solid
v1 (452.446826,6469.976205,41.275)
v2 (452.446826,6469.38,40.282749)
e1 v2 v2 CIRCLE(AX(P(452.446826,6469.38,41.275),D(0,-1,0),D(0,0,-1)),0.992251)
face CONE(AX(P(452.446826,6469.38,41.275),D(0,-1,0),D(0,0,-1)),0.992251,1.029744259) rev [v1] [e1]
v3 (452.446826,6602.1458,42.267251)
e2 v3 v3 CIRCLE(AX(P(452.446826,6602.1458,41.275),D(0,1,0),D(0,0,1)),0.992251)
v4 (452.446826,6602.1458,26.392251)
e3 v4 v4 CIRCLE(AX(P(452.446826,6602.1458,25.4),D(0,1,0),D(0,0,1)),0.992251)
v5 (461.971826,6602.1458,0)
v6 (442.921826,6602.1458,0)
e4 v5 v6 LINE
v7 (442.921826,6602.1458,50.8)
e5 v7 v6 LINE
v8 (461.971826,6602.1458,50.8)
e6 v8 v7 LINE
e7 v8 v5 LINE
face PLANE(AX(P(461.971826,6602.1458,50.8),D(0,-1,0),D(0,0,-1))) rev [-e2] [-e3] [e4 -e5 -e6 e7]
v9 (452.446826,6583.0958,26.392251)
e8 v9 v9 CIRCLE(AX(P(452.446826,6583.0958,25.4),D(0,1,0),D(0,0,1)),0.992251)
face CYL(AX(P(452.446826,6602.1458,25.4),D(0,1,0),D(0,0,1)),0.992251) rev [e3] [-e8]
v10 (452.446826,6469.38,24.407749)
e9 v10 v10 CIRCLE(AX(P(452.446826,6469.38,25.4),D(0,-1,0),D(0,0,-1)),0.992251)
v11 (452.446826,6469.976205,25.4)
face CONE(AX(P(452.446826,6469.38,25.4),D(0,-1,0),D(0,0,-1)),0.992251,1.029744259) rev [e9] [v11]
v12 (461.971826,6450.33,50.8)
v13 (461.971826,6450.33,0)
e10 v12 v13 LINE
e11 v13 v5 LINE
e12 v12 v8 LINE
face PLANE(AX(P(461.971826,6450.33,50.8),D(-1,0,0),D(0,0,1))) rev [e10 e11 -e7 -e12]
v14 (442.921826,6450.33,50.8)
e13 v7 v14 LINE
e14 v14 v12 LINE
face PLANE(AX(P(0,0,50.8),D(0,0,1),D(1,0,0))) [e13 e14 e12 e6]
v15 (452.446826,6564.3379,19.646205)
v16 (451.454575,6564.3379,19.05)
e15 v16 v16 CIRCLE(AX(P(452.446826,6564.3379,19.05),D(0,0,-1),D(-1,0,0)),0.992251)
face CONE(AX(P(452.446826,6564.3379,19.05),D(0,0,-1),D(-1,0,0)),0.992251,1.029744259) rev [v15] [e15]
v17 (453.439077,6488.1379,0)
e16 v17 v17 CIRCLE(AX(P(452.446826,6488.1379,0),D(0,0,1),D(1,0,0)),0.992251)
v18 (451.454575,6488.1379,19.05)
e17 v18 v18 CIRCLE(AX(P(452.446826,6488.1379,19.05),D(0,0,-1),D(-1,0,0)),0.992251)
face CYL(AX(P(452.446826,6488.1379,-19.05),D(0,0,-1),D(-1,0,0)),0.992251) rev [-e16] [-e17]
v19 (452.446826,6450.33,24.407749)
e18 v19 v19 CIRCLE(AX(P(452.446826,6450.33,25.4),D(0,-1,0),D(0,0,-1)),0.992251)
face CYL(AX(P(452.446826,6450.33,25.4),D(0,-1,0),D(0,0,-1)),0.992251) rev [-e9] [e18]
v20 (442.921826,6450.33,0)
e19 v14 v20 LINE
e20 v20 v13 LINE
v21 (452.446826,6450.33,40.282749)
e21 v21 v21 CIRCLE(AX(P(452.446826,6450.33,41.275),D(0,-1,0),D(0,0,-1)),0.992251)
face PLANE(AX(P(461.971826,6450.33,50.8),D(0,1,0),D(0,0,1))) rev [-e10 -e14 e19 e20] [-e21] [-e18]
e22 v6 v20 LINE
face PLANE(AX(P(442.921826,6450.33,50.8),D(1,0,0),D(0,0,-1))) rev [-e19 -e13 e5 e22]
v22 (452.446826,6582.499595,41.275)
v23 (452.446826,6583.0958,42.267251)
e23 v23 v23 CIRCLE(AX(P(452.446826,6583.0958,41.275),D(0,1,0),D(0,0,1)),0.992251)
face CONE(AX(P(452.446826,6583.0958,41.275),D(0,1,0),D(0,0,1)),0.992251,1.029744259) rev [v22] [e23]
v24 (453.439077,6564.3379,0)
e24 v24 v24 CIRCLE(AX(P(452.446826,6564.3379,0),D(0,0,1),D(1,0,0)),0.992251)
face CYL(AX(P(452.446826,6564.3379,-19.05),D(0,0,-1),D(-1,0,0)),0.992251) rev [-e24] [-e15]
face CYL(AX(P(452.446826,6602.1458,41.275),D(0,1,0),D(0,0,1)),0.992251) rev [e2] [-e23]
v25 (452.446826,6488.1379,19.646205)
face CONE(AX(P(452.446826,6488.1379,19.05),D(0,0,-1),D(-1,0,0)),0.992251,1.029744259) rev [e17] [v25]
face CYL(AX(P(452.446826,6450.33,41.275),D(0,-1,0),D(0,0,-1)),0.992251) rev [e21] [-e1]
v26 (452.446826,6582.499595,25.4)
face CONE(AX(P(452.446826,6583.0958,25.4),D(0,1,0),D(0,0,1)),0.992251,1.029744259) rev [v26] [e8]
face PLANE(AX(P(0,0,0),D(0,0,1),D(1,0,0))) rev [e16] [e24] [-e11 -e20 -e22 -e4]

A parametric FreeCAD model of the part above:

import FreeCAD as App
import Part
import Sketcher
Q = App.Units.Quantity

doc = App.newDocument("Part")
body = doc.addObject("PartDesign::Body", "Body")

# Sketch on XY plane
sketch1 = doc.addObject("Sketcher::SketchObject", "Sketch")
body.addObject(sketch1)
sketch1.AttachmentSupport = (doc.XY_Plane, [""])
sketch1.MapMode = "FlatFace"
sketch1.addGeometry([
    Part.LineSegment(App.Vector(443, 6602, 0), App.Vector(443, 6450, 0)),
    Part.LineSegment(App.Vector(443, 6450, 0), App.Vector(462, 6450, 0)),
    Part.LineSegment(App.Vector(462, 6450, 0), App.Vector(462, 6602, 0)),
    Part.LineSegment(App.Vector(462, 6602, 0), App.Vector(443, 6602, 0)),
], False)
sketch1.addConstraint([
    Sketcher.Constraint("Coincident", 0, 2, 1, 1),
    Sketcher.Constraint("Coincident", 1, 2, 2, 1),
    Sketcher.Constraint("Coincident", 2, 2, 3, 1),
    Sketcher.Constraint("Coincident", 3, 2, 0, 1),
    Sketcher.Constraint("Vertical", 0),
    Sketcher.Constraint("Horizontal", 1),
    Sketcher.Constraint("Vertical", 2),
    Sketcher.Constraint("Horizontal", 3),
    Sketcher.Constraint("DistanceX", 1, 1, 1, 2, Q("0.75 in")),
    Sketcher.Constraint("DistanceY", 0, 2, 0, 1, Q("5.977 in")),
    Sketcher.Constraint("DistanceY", -1, 1, 0, 2, Q("253.95 in")),
    Sketcher.Constraint("DistanceX", -1, 1, 0, 2, 442.921826),
])
pad1 = doc.addObject("PartDesign::Pad", "Pad")
body.addObject(pad1)
pad1.Profile = sketch1
pad1.Length = Q("2 in")

# Sketch on XY plane
sketch2 = doc.addObject("Sketcher::SketchObject", "Sketch001")
body.addObject(sketch2)
sketch2.AttachmentSupport = (doc.XY_Plane, [""])
sketch2.MapMode = "FlatFace"
sketch2.AttachmentOffset = App.Placement(App.Vector(0, 0, -0.75 * 25.4), App.Rotation())
sketch2.addGeometry([
    Part.Circle(App.Vector(487.2, 6993.3, 0), App.Vector(0, 0, 1), 1),  # 0
    Part.Circle(App.Vector(392, 6993.3, 0), App.Vector(0, 0, 1), 1),  # 1
    Part.Circle(App.Vector(296.7, 6993.3, 0), App.Vector(0, 0, 1), 1),  # 2
    Part.Circle(App.Vector(300.9, 6965.1, 0), App.Vector(0, 0, 1), 1),  # 3
    Part.Circle(App.Vector(300.9, 6812.7, 0), App.Vector(0, 0, 1), 1),  # 4
    Part.Circle(App.Vector(300.9, 6660.3, 0), App.Vector(0, 0, 1), 1),  # 5
    Part.Circle(App.Vector(290.8, 6631.5, 0), App.Vector(0, 0, 1), 1),  # 6
    Part.Circle(App.Vector(481.1, 6631.5, 0), App.Vector(0, 0, 1), 1),  # 7
    Part.Circle(App.Vector(490.6, 6660.3, 0), App.Vector(0, 0, 1), 1),  # 8
    Part.Circle(App.Vector(490.6, 6812.7, 0), App.Vector(0, 0, 1), 1),  # 9
    Part.Circle(App.Vector(490.6, 6965.1, 0), App.Vector(0, 0, 1), 1),  # 10
    Part.Circle(App.Vector(484, 6611.7, 0), App.Vector(0, 0, 1), 1),  # 11
    Part.Circle(App.Vector(293.5, 6611.7, 0), App.Vector(0, 0, 1), 1),  # 12
    Part.Circle(App.Vector(313.6, 6564.3, 0), App.Vector(0, 0, 1), 1),  # 13
    Part.Circle(App.Vector(313.6, 6488.1, 0), App.Vector(0, 0, 1), 1),  # 14
    Part.Circle(App.Vector(290.6, 6440.8, 0), App.Vector(0, 0, 1), 1),  # 15
    Part.Circle(App.Vector(385.8, 6440.8, 0), App.Vector(0, 0, 1), 1),  # 16
    Part.Circle(App.Vector(481.1, 6440.8, 0), App.Vector(0, 0, 1), 1),  # 17
    Part.Circle(App.Vector(452.4, 6488.1, 0), App.Vector(0, 0, 1), 1),  # 18
    Part.Circle(App.Vector(452.4, 6564.3, 0), App.Vector(0, 0, 1), 1),  # 19
    Part.Circle(App.Vector(477.8, 6396.4, 0), App.Vector(0, 0, 1), 1),  # 20
    Part.Circle(App.Vector(477.8, 6320.2, 0), App.Vector(0, 0, 1), 1),  # 21
    Part.Circle(App.Vector(478.3, 6275.7, 0), App.Vector(0, 0, 1), 1),  # 22
    Part.Circle(App.Vector(383, 6275.7, 0), App.Vector(0, 0, 1), 1),  # 23
    Part.Circle(App.Vector(287.8, 6275.7, 0), App.Vector(0, 0, 1), 1),  # 24
    Part.Circle(App.Vector(288.2, 6320.2, 0), App.Vector(0, 0, 1), 1),  # 25
    Part.Circle(App.Vector(288.2, 6396.4, 0), App.Vector(0, 0, 1), 1),  # 26
    Part.Circle(App.Vector(441.2, 6221.7, 0), App.Vector(0, 0, 1), 1),  # 27
    Part.Circle(App.Vector(441.2, 6145.5, 0), App.Vector(0, 0, 1), 1),  # 28
    Part.Circle(App.Vector(456.2, 6091.6, 0), App.Vector(0, 0, 1), 1),  # 29
    Part.Circle(App.Vector(466.6, 6091.6, 0), App.Vector(0, 0, 1), 1),  # 30
    Part.Circle(App.Vector(466.6, 6056.6, 0), App.Vector(0, 0, 1), 1),  # 31
    Part.Circle(App.Vector(466.6, 5980.4, 0), App.Vector(0, 0, 1), 1),  # 32
    Part.Circle(App.Vector(466.6, 5945.5, 0), App.Vector(0, 0, 1), 1),  # 33
    Part.Circle(App.Vector(287.8, 5945.5, 0), App.Vector(0, 0, 1), 1),  # 34
    Part.Circle(App.Vector(374.2, 5945.5, 0), App.Vector(0, 0, 1), 1),  # 35
], False)
sketch2.addConstraint([
    Sketcher.Constraint("Equal", 0, 1),
    Sketcher.Constraint("Equal", 1, 2),
    Sketcher.Constraint("Equal", 2, 3),
    Sketcher.Constraint("Equal", 3, 4),
    Sketcher.Constraint("Equal", 4, 5),
    Sketcher.Constraint("Equal", 5, 6),
    Sketcher.Constraint("Equal", 6, 7),
    Sketcher.Constraint("Equal", 7, 8),
    Sketcher.Constraint("Equal", 8, 9),
    Sketcher.Constraint("Equal", 9, 10),
    Sketcher.Constraint("Equal", 10, 11),
    Sketcher.Constraint("Equal", 11, 12),
    Sketcher.Constraint("Equal", 12, 13),
    Sketcher.Constraint("Equal", 13, 14),
    Sketcher.Constraint("Equal", 14, 15),
    Sketcher.Constraint("Equal", 15, 16),
    Sketcher.Constraint("Equal", 16, 17),
    Sketcher.Constraint("Equal", 17, 18),
    Sketcher.Constraint("Equal", 18, 19),
    Sketcher.Constraint("Equal", 19, 20),
    Sketcher.Constraint("Equal", 20, 21),
    Sketcher.Constraint("Equal", 21, 22),
    Sketcher.Constraint("Equal", 22, 23),
    Sketcher.Constraint("Equal", 23, 24),
    Sketcher.Constraint("Equal", 24, 25),
    Sketcher.Constraint("Equal", 25, 26),
    Sketcher.Constraint("Equal", 26, 27),
    Sketcher.Constraint("Equal", 27, 28),
    Sketcher.Constraint("Equal", 28, 29),
    Sketcher.Constraint("Equal", 29, 30),
    Sketcher.Constraint("Equal", 30, 31),
    Sketcher.Constraint("Equal", 31, 32),
    Sketcher.Constraint("Equal", 32, 33),
    Sketcher.Constraint("Equal", 33, 34),
    Sketcher.Constraint("Equal", 34, 35),
    Sketcher.Constraint("Horizontal", 0, 3, 1, 3),
    Sketcher.Constraint("Horizontal", 1, 3, 2, 3),
    Sketcher.Constraint("Horizontal", 5, 3, 8, 3),
    Sketcher.Constraint("Horizontal", 4, 3, 9, 3),
    Sketcher.Constraint("Horizontal", 3, 3, 10, 3),
    Sketcher.Constraint("Horizontal", 11, 3, 12, 3),
    Sketcher.Constraint("Horizontal", 15, 3, 16, 3),
    Sketcher.Constraint("Horizontal", 16, 3, 17, 3),
    Sketcher.Constraint("Horizontal", 14, 3, 18, 3),
    Sketcher.Constraint("Horizontal", 13, 3, 19, 3),
    Sketcher.Constraint("Horizontal", 22, 3, 23, 3),
    Sketcher.Constraint("Horizontal", 23, 3, 24, 3),
    Sketcher.Constraint("Horizontal", 21, 3, 25, 3),
    Sketcher.Constraint("Horizontal", 20, 3, 26, 3),
    Sketcher.Constraint("Horizontal", 33, 3, 34, 3),
    Sketcher.Constraint("Horizontal", 34, 3, 35, 3),
    Sketcher.Constraint("Vertical", 3, 3, 4, 3),
    Sketcher.Constraint("Vertical", 4, 3, 5, 3),
    Sketcher.Constraint("Vertical", 8, 3, 9, 3),
    Sketcher.Constraint("Vertical", 9, 3, 10, 3),
    Sketcher.Constraint("Vertical", 13, 3, 14, 3),
    Sketcher.Constraint("Vertical", 18, 3, 19, 3),
    Sketcher.Constraint("Vertical", 20, 3, 21, 3),
    Sketcher.Constraint("Vertical", 25, 3, 26, 3),
    Sketcher.Constraint("Vertical", 27, 3, 28, 3),
    Sketcher.Constraint("Vertical", 30, 3, 31, 3),
    Sketcher.Constraint("Vertical", 31, 3, 32, 3),
    Sketcher.Constraint("Vertical", 32, 3, 33, 3),
    Sketcher.Constraint("Vertical", 24, 3, 34, 3),
    Sketcher.Constraint("DistanceY", 4, 3, 3, 3, Q("6 in")),
    Sketcher.Constraint("DistanceY", 5, 3, 4, 3, Q("6 in")),
    Sketcher.Constraint("DistanceY", 14, 3, 13, 3, Q("3 in")),
    Sketcher.Constraint("DistanceX", 18, 3, 20, 3, Q("1 in")),
    Sketcher.Constraint("DistanceY", 21, 3, 20, 3, Q("3 in")),
    Sketcher.Constraint("DistanceX", 25, 3, 14, 3, Q("1 in")),
    Sketcher.Constraint("DistanceY", 28, 3, 27, 3, Q("3 in")),
    Sketcher.Constraint("DistanceY", 29, 3, 21, 3, Q("9 in")),
    Sketcher.Constraint("DistanceX", 28, 3, 30, 3, Q("1 in")),
    Sketcher.Constraint("DistanceY", 32, 3, 31, 3, Q("3 in")),
    Sketcher.Constraint("DistanceX", 2, 3, 0, 3, Q("7.5 in")),
    Sketcher.Constraint("DistanceX", 12, 3, 11, 3, Q("7.5 in")),
    Sketcher.Constraint("DistanceX", 5, 3, 13, 3, Q("0.5 in")),
    Sketcher.Constraint("DistanceX", 15, 3, 17, 3, Q("7.5 in")),
    Sketcher.Constraint("DistanceY", 22, 3, 17, 3, Q("6.5 in")),
    Sketcher.Constraint("DistanceX", 24, 3, 22, 3, Q("7.5 in")),
    Sketcher.Constraint("DistanceY", 31, 3, 28, 3, Q("3.5 in")),
    Sketcher.Constraint("DistanceY", -1, 1, 27, 3, Q("244.95 in")),
    Sketcher.Constraint("DistanceX", 1, 3, 0, 3, Q("3.75 in")),
    Sketcher.Constraint("DistanceX", 15, 3, 16, 3, Q("3.75 in")),
    Sketcher.Constraint("DistanceY", 20, 3, 17, 3, Q("1.75 in")),
    Sketcher.Constraint("DistanceX", 23, 3, 22, 3, Q("3.75 in")),
    Sketcher.Constraint("DistanceY", 33, 3, 29, 3, Q("5.75 in")),
    Sketcher.Constraint("DistanceY", -1, 1, 11, 3, Q("260.302 in")),
    Sketcher.Constraint("DistanceY", -1, 1, 15, 3, Q("253.575 in")),
    Sketcher.Constraint("DistanceX", 7, 3, 8, 3, Q("0.375 in")),
    Sketcher.Constraint("Diameter", 0, 1.984502),
    Sketcher.Constraint("DistanceY", -1, 1, 13, 3, Q("258.4385 in")),
    Sketcher.Constraint("DistanceY", 6, 3, 5, 3, Q("1.1364998 in")),
    Sketcher.Constraint("DistanceX", 18, 3, 17, 3, 28.629601),
    Sketcher.Constraint("DistanceX", -1, 1, 0, 3, 487.204762),
    Sketcher.Constraint("DistanceY", -1, 1, 3, 3, 6965.135938),
    Sketcher.Constraint("DistanceX", -1, 1, 7, 3, 481.092821),
    Sketcher.Constraint("DistanceX", -1, 1, 11, 3, 483.981131),
    Sketcher.Constraint("DistanceX", -1, 1, 22, 3, 478.26867),
    Sketcher.Constraint("DistanceX", -1, 1, 27, 3, 441.21416),
    Sketcher.Constraint("DistanceX", -1, 1, 29, 3, 456.208032),
    Sketcher.Constraint("DistanceY", -1, 1, 30, 3, 6091.555478),
    Sketcher.Constraint("DistanceX", 2, 3, 3, 3, 4.185752),
    Sketcher.Constraint("DistanceY", 6, 3, 2, 3, 361.786149),
    Sketcher.Constraint("DistanceY", 7, 3, 0, 3, 361.78624),
    Sketcher.Constraint("DistanceX", 15, 3, 6, 3, 0.205449),
    Sketcher.Constraint("DistanceX", -1, 1, 6, 3, 290.781876),
    Sketcher.Constraint("DistanceX", -1, 1, 35, 3, 374.227337),
])
doc.recompute()
hole = doc.addObject("PartDesign::Hole", "Hole")
body.addObject(hole)
hole.Profile = sketch2
hole.ThreadType = "None"
hole.Diameter = 1.984502
hole.DepthType = "Dimension"
hole.Depth = Q("1.5 in")
hole.DrillPoint = "Angled"
hole.DrillPointAngle = 118
hole.Reversed = True

# Sketch on XY plane
sketch3 = doc.addObject("Sketcher::SketchObject", "Sketch002")
body.addObject(sketch3)
sketch3.AttachmentSupport = (doc.XY_Plane, [""])
sketch3.MapMode = "FlatFace"
sketch3.AttachmentOffset = App.Placement(App.Vector(0, 0, -0.75 * 25.4), App.Rotation())
sketch3.addGeometry([
    Part.Circle(App.Vector(626.1, 6993.3, 0), App.Vector(0, 0, 1), 1),  # 0
    Part.Circle(App.Vector(530.8, 6993.3, 0), App.Vector(0, 0, 1), 1),  # 1
    Part.Circle(App.Vector(435.6, 6993.3, 0), App.Vector(0, 0, 1), 1),  # 2
    Part.Circle(App.Vector(439.7, 6965.1, 0), App.Vector(0, 0, 1), 1),  # 3
    Part.Circle(App.Vector(439.7, 6812.7, 0), App.Vector(0, 0, 1), 1),  # 4
    Part.Circle(App.Vector(439.7, 6660.3, 0), App.Vector(0, 0, 1), 1),  # 5
    Part.Circle(App.Vector(429.6, 6631.5, 0), App.Vector(0, 0, 1), 1),  # 6
    Part.Circle(App.Vector(619.9, 6631.5, 0), App.Vector(0, 0, 1), 1),  # 7
    Part.Circle(App.Vector(629.5, 6660.3, 0), App.Vector(0, 0, 1), 1),  # 8
    Part.Circle(App.Vector(629.5, 6812.7, 0), App.Vector(0, 0, 1), 1),  # 9
    Part.Circle(App.Vector(629.5, 6965.1, 0), App.Vector(0, 0, 1), 1),  # 10
    Part.Circle(App.Vector(622.8, 6611.7, 0), App.Vector(0, 0, 1), 1),  # 11
    Part.Circle(App.Vector(432.3, 6611.7, 0), App.Vector(0, 0, 1), 1),  # 12
    Part.Circle(App.Vector(452.4, 6564.3, 0), App.Vector(0, 0, 1), 1),  # 13
    Part.Circle(App.Vector(452.4, 6488.1, 0), App.Vector(0, 0, 1), 1),  # 14
    Part.Circle(App.Vector(429.4, 6440.8, 0), App.Vector(0, 0, 1), 1),  # 15
    Part.Circle(App.Vector(524.7, 6440.8, 0), App.Vector(0, 0, 1), 1),  # 16
    Part.Circle(App.Vector(619.9, 6440.8, 0), App.Vector(0, 0, 1), 1),  # 17
    Part.Circle(App.Vector(591.3, 6488.1, 0), App.Vector(0, 0, 1), 1),  # 18
    Part.Circle(App.Vector(591.3, 6564.3, 0), App.Vector(0, 0, 1), 1),  # 19
    Part.Circle(App.Vector(616.7, 6396.4, 0), App.Vector(0, 0, 1), 1),  # 20
    Part.Circle(App.Vector(616.7, 6320.2, 0), App.Vector(0, 0, 1), 1),  # 21
    Part.Circle(App.Vector(617.1, 6275.7, 0), App.Vector(0, 0, 1), 1),  # 22
    Part.Circle(App.Vector(521.9, 6275.7, 0), App.Vector(0, 0, 1), 1),  # 23
    Part.Circle(App.Vector(426.6, 6275.7, 0), App.Vector(0, 0, 1), 1),  # 24
    Part.Circle(App.Vector(427, 6320.2, 0), App.Vector(0, 0, 1), 1),  # 25
    Part.Circle(App.Vector(427, 6396.4, 0), App.Vector(0, 0, 1), 1),  # 26
    Part.Circle(App.Vector(580.1, 6221.7, 0), App.Vector(0, 0, 1), 1),  # 27
    Part.Circle(App.Vector(580.1, 6145.5, 0), App.Vector(0, 0, 1), 1),  # 28
    Part.Circle(App.Vector(595.1, 6091.6, 0), App.Vector(0, 0, 1), 1),  # 29
    Part.Circle(App.Vector(605.5, 6091.6, 0), App.Vector(0, 0, 1), 1),  # 30
    Part.Circle(App.Vector(605.5, 6056.6, 0), App.Vector(0, 0, 1), 1),  # 31
    Part.Circle(App.Vector(605.5, 5980.4, 0), App.Vector(0, 0, 1), 1),  # 32
    Part.Circle(App.Vector(605.5, 5945.5, 0), App.Vector(0, 0, 1), 1),  # 33
    Part.Circle(App.Vector(426.6, 5945.5, 0), App.Vector(0, 0, 1), 1),  # 34
    Part.Circle(App.Vector(513.1, 5945.5, 0), App.Vector(0, 0, 1), 1),  # 35
], False)
sketch3.addConstraint([
    Sketcher.Constraint("Equal", 0, 1),
    Sketcher.Constraint("Equal", 1, 2),
    Sketcher.Constraint("Equal", 2, 3),
    Sketcher.Constraint("Equal", 3, 4),
    Sketcher.Constraint("Equal", 4, 5),
    Sketcher.Constraint("Equal", 5, 6),
    Sketcher.Constraint("Equal", 6, 7),
    Sketcher.Constraint("Equal", 7, 8),
    Sketcher.Constraint("Equal", 8, 9),
    Sketcher.Constraint("Equal", 9, 10),
    Sketcher.Constraint("Equal", 10, 11),
    Sketcher.Constraint("Equal", 11, 12),
    Sketcher.Constraint("Equal", 12, 13),
    Sketcher.Constraint("Equal", 13, 14),
    Sketcher.Constraint("Equal", 14, 15),
    Sketcher.Constraint("Equal", 15, 16),
    Sketcher.Constraint("Equal", 16, 17),
    Sketcher.Constraint("Equal", 17, 18),
    Sketcher.Constraint("Equal", 18, 19),
    Sketcher.Constraint("Equal", 19, 20),
    Sketcher.Constraint("Equal", 20, 21),
    Sketcher.Constraint("Equal", 21, 22),
    Sketcher.Constraint("Equal", 22, 23),
    Sketcher.Constraint("Equal", 23, 24),
    Sketcher.Constraint("Equal", 24, 25),
    Sketcher.Constraint("Equal", 25, 26),
    Sketcher.Constraint("Equal", 26, 27),
    Sketcher.Constraint("Equal", 27, 28),
    Sketcher.Constraint("Equal", 28, 29),
    Sketcher.Constraint("Equal", 29, 30),
    Sketcher.Constraint("Equal", 30, 31),
    Sketcher.Constraint("Equal", 31, 32),
    Sketcher.Constraint("Equal", 32, 33),
    Sketcher.Constraint("Equal", 33, 34),
    Sketcher.Constraint("Equal", 34, 35),
    Sketcher.Constraint("Horizontal", 0, 3, 1, 3),
    Sketcher.Constraint("Horizontal", 1, 3, 2, 3),
    Sketcher.Constraint("Horizontal", 5, 3, 8, 3),
    Sketcher.Constraint("Horizontal", 4, 3, 9, 3),
    Sketcher.Constraint("Horizontal", 3, 3, 10, 3),
    Sketcher.Constraint("Horizontal", 11, 3, 12, 3),
    Sketcher.Constraint("Horizontal", 15, 3, 16, 3),
    Sketcher.Constraint("Horizontal", 16, 3, 17, 3),
    Sketcher.Constraint("Horizontal", 14, 3, 18, 3),
    Sketcher.Constraint("Horizontal", 13, 3, 19, 3),
    Sketcher.Constraint("Horizontal", 22, 3, 23, 3),
    Sketcher.Constraint("Horizontal", 23, 3, 24, 3),
    Sketcher.Constraint("Horizontal", 21, 3, 25, 3),
    Sketcher.Constraint("Horizontal", 20, 3, 26, 3),
    Sketcher.Constraint("Horizontal", 33, 3, 34, 3),
    Sketcher.Constraint("Horizontal", 34, 3, 35, 3),
    Sketcher.Constraint("Vertical", 3, 3, 4, 3),
    Sketcher.Constraint("Vertical", 4, 3, 5, 3),
    Sketcher.Constraint("Vertical", 8, 3, 9, 3),
    Sketcher.Constraint("Vertical", 9, 3, 10, 3),
    Sketcher.Constraint("Vertical", 13, 3, 14, 3),
    Sketcher.Constraint("Vertical", 18, 3, 19, 3),
    Sketcher.Constraint("Vertical", 20, 3, 21, 3),
    Sketcher.Constraint("Vertical", 25, 3, 26, 3),
    Sketcher.Constraint("Vertical", 27, 3, 28, 3),
    Sketcher.Constraint("Vertical", 30, 3, 31, 3),
    Sketcher.Constraint("Vertical", 31, 3, 32, 3),
    Sketcher.Constraint("Vertical", 32, 3, 33, 3),
    Sketcher.Constraint("Vertical", 24, 3, 34, 3),
    Sketcher.Constraint("DistanceY", 4, 3, 3, 3, Q("6 in")),
    Sketcher.Constraint("DistanceY", 5, 3, 4, 3, Q("6 in")),
    Sketcher.Constraint("DistanceY", 14, 3, 13, 3, Q("3 in")),
    Sketcher.Constraint("DistanceX", 18, 3, 20, 3, Q("1 in")),
    Sketcher.Constraint("DistanceY", 21, 3, 20, 3, Q("3 in")),
    Sketcher.Constraint("DistanceX", 25, 3, 14, 3, Q("1 in")),
    Sketcher.Constraint("DistanceY", 28, 3, 27, 3, Q("3 in")),
    Sketcher.Constraint("DistanceY", 29, 3, 21, 3, Q("9 in")),
    Sketcher.Constraint("DistanceX", 28, 3, 30, 3, Q("1 in")),
    Sketcher.Constraint("DistanceY", 32, 3, 31, 3, Q("3 in")),
    Sketcher.Constraint("DistanceX", 2, 3, 0, 3, Q("7.5 in")),
    Sketcher.Constraint("DistanceX", 12, 3, 11, 3, Q("7.5 in")),
    Sketcher.Constraint("DistanceX", 5, 3, 13, 3, Q("0.5 in")),
    Sketcher.Constraint("DistanceX", 15, 3, 17, 3, Q("7.5 in")),
    Sketcher.Constraint("DistanceY", 22, 3, 17, 3, Q("6.5 in")),
    Sketcher.Constraint("DistanceX", 24, 3, 22, 3, Q("7.5 in")),
    Sketcher.Constraint("DistanceY", 31, 3, 28, 3, Q("3.5 in")),
    Sketcher.Constraint("DistanceY", -1, 1, 27, 3, Q("244.95 in")),
    Sketcher.Constraint("DistanceX", 1, 3, 0, 3, Q("3.75 in")),
    Sketcher.Constraint("DistanceX", 15, 3, 16, 3, Q("3.75 in")),
    Sketcher.Constraint("DistanceY", 20, 3, 17, 3, Q("1.75 in")),
    Sketcher.Constraint("DistanceX", 23, 3, 22, 3, Q("3.75 in")),
    Sketcher.Constraint("DistanceY", 33, 3, 29, 3, Q("5.75 in")),
    Sketcher.Constraint("DistanceY", -1, 1, 11, 3, Q("260.302 in")),
    Sketcher.Constraint("DistanceY", -1, 1, 15, 3, Q("253.575 in")),
    Sketcher.Constraint("DistanceX", 7, 3, 8, 3, Q("0.375 in")),
    Sketcher.Constraint("Diameter", 0, 1.984502),
    Sketcher.Constraint("DistanceY", -1, 1, 13, 3, Q("258.4385 in")),
    Sketcher.Constraint("DistanceY", 6, 3, 5, 3, Q("1.1364998 in")),
    Sketcher.Constraint("DistanceX", 18, 3, 17, 3, 28.629601),
    Sketcher.Constraint("DistanceY", -1, 1, 3, 3, 6965.135938),
    Sketcher.Constraint("DistanceX", -1, 1, 6, 3, 429.638188),
    Sketcher.Constraint("DistanceX", -1, 1, 15, 3, 429.432739),
    Sketcher.Constraint("DistanceY", -1, 1, 30, 3, 6091.555478),
    Sketcher.Constraint("DistanceX", -1, 1, 35, 3, 513.083649),
    Sketcher.Constraint("DistanceX", 2, 3, 3, 3, 4.185752),
    Sketcher.Constraint("DistanceY", 6, 3, 2, 3, 361.786149),
    Sketcher.Constraint("DistanceX", 7, 3, 0, 3, 6.111941),
    Sketcher.Constraint("DistanceY", 7, 3, 0, 3, 361.78624),
    Sketcher.Constraint("DistanceX", 7, 3, 11, 3, 2.88831),
    Sketcher.Constraint("DistanceX", 27, 3, 22, 3, 37.05451),
    Sketcher.Constraint("DistanceX", 28, 3, 29, 3, 14.993872),
    Sketcher.Constraint("DistanceX", -1, 1, 0, 3, 626.061074),
    Sketcher.Constraint("DistanceX", -1, 1, 22, 3, 617.124982),
])
doc.recompute()
hole2 = doc.addObject("PartDesign::Hole", "Hole001")
body.addObject(hole2)
hole2.Profile = sketch3
hole2.ThreadType = "None"
hole2.Diameter = 1.984502
hole2.DepthType = "Dimension"
hole2.Depth = Q("1.5 in")
hole2.DrillPoint = "Angled"
hole2.DrillPointAngle = 118
hole2.Reversed = True

# Sketch on XZ plane
sketch4 = doc.addObject("Sketcher::SketchObject", "Sketch003")
body.addObject(sketch4)
sketch4.AttachmentSupport = (doc.XZ_Plane, [""])
sketch4.MapMode = "FlatFace"
sketch4.AttachmentOffset = App.Placement(App.Vector(0, 0, -259.927 * 25.4), App.Rotation())
sketch4.addGeometry([
    Part.Circle(App.Vector(452.4, 41.3, 0), App.Vector(0, 0, 1), 1),
    Part.Circle(App.Vector(452.4, 25.4, 0), App.Vector(0, 0, 1), 1),
], False)
sketch4.addConstraint([
    Sketcher.Constraint("Equal", 0, 1),
    Sketcher.Constraint("Vertical", 0, 3, 1, 3),
    Sketcher.Constraint("DistanceY", -1, 1, 1, 3, Q("1 in")),
    Sketcher.Constraint("DistanceY", -1, 1, 0, 3, Q("1.625 in")),
    Sketcher.Constraint("Diameter", 0, 1.984502),
    Sketcher.Constraint("DistanceX", -1, 1, 0, 3, 452.446826),
])
doc.recompute()
hole3 = doc.addObject("PartDesign::Hole", "Hole002")
body.addObject(hole3)
hole3.Profile = sketch4
hole3.ThreadType = "None"
hole3.Diameter = 1.984502
hole3.DepthType = "Dimension"
hole3.Depth = Q("0.75 in")
hole3.DrillPoint = "Angled"
hole3.DrillPointAngle = 118
hole3.Reversed = True

# Sketch on XZ plane
sketch5 = doc.addObject("Sketcher::SketchObject", "Sketch004")
body.addObject(sketch5)
sketch5.AttachmentSupport = (doc.XZ_Plane, [""])
sketch5.MapMode = "FlatFace"
sketch5.AttachmentOffset = App.Placement(App.Vector(0, 0, -253.95 * 25.4), App.Rotation())
sketch5.addGeometry([
    Part.Circle(App.Vector(452.4, 41.3, 0), App.Vector(0, 0, 1), 1),
    Part.Circle(App.Vector(452.4, 25.4, 0), App.Vector(0, 0, 1), 1),
], False)
sketch5.addConstraint([
    Sketcher.Constraint("Equal", 0, 1),
    Sketcher.Constraint("Vertical", 0, 3, 1, 3),
    Sketcher.Constraint("DistanceY", -1, 1, 1, 3, Q("1 in")),
    Sketcher.Constraint("DistanceY", -1, 1, 0, 3, Q("1.625 in")),
    Sketcher.Constraint("Diameter", 0, 1.984502),
    Sketcher.Constraint("DistanceX", -1, 1, 0, 3, 452.446826),
])
doc.recompute()
hole4 = doc.addObject("PartDesign::Hole", "Hole003")
body.addObject(hole4)
hole4.Profile = sketch5
hole4.ThreadType = "None"
hole4.Diameter = 1.984502
hole4.DepthType = "Dimension"
hole4.Depth = Q("0.75 in")
hole4.DrillPoint = "Angled"
hole4.DrillPointAngle = 118

doc.recompute()
